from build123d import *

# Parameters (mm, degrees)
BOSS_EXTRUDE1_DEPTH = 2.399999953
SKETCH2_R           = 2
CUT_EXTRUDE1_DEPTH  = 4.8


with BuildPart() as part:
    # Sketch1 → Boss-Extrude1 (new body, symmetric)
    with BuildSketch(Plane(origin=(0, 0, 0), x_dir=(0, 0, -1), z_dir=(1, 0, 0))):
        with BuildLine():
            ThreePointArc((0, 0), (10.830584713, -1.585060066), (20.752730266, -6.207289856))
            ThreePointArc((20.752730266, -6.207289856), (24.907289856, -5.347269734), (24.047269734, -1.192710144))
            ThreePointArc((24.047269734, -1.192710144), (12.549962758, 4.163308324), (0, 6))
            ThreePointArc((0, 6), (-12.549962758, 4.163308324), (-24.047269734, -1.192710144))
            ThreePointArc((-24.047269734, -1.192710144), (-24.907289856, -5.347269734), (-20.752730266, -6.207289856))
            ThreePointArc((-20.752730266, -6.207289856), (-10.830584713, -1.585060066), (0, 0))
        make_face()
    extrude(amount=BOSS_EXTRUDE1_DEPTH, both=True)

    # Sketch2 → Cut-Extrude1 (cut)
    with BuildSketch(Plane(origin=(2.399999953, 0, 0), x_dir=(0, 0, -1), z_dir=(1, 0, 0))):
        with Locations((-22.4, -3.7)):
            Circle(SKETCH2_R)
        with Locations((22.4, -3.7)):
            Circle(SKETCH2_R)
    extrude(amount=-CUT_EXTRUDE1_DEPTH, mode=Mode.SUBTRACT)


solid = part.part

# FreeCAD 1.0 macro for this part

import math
import FreeCAD as App
import Part
import Sketcher

V = App.Vector
Q = App.Units.Quantity

doc = App.newDocument("Part")
body = doc.addObject("PartDesign::Body", "Body")

sketch1 = body.newObject("Sketcher::SketchObject", "Sketch")
sketch1.AttachmentSupport = (doc.getObject("YZ_Plane"), [""])
sketch1.MapMode = "FlatFace"
sketch1.addGeometry([
    Part.ArcOfCircle(Part.Circle(V(-37.8, 0, 0), V(0, 0, 1), 37.8), math.radians(-33), math.radians(0)),
    Part.ArcOfCircle(Part.Circle(V(-3.7, -22.4, 0), V(0, 0, 1), 3), math.radians(147), math.radians(327)),
    Part.ArcOfCircle(Part.Circle(V(-37.8, 0, 0), V(0, 0, 1), 43.8), math.radians(-33), math.radians(0)),
    Part.ArcOfCircle(Part.Circle(V(-37.8, 0, 0), V(0, 0, 1), 43.8), math.radians(0), math.radians(33)),
    Part.ArcOfCircle(Part.Circle(V(-3.7, 22.4, 0), V(0, 0, 1), 3), math.radians(33), math.radians(213)),
    Part.ArcOfCircle(Part.Circle(V(-37.8, 0, 0), V(0, 0, 1), 37.8), math.radians(0), math.radians(33)),
], False)
sketch1.addConstraint([
    Sketcher.Constraint("Tangent", 0, 1, 1, 1),
    Sketcher.Constraint("Tangent", 1, 2, 2, 1),
    Sketcher.Constraint("Tangent", 2, 2, 3, 1),
    Sketcher.Constraint("Tangent", 3, 2, 4, 1),
    Sketcher.Constraint("Tangent", 4, 2, 5, 2),
    Sketcher.Constraint("Tangent", 5, 1, 0, 2),
    Sketcher.Constraint("Coincident", 5, 1, -1, 1),
    Sketcher.Constraint("Coincident", 2, 3, 0, 3),
    Sketcher.Constraint("Equal", 2, 3),
    Sketcher.Constraint("Equal", 1, 4),
    Sketcher.Constraint("Symmetric", 1, 3, 4, 3, -1),
    Sketcher.Constraint("PointOnObject", 2, 2, -1),
    Sketcher.Constraint("Radius", 1, Q("3 mm")),
    Sketcher.Constraint("DistanceX", 1, 3, -1, 1, Q("3.7 mm")),
    Sketcher.Constraint("DistanceY", 1, 3, -1, 1, Q("22.4 mm")),
])
pad1 = body.newObject("PartDesign::Pad", "Pad")
pad1.Profile = sketch1
pad1.Length = 4.8
pad1.Midplane = True

sketch2 = body.newObject("Sketcher::SketchObject", "Sketch001")
sketch2.AttachmentSupport = (doc.getObject("YZ_Plane"), [""])
sketch2.MapMode = "FlatFace"
sketch2.AttachmentOffset = App.Placement(V(0, 0, 2.4), App.Rotation())
sketch2.addGeometry([
    Part.Circle(V(-3.7, 22.4, 0), V(0, 0, 1), 2),
    Part.Circle(V(-3.7, -22.4, 0), V(0, 0, 1), 2),
], False)
sketch2.addConstraint([
    Sketcher.Constraint("Equal", 0, 1),
    Sketcher.Constraint("Symmetric", 0, 3, 1, 3, -1),
    Sketcher.Constraint("Diameter", 0, Q("4 mm")),
    Sketcher.Constraint("DistanceX", 0, 3, -1, 1, Q("3.7 mm")),
    Sketcher.Constraint("DistanceY", -1, 1, 0, 3, Q("22.4 mm")),
])
pocket1 = body.newObject("PartDesign::Pocket", "Pocket")
pocket1.Profile = sketch2
pocket1.Length = 4.8

doc.recompute()
